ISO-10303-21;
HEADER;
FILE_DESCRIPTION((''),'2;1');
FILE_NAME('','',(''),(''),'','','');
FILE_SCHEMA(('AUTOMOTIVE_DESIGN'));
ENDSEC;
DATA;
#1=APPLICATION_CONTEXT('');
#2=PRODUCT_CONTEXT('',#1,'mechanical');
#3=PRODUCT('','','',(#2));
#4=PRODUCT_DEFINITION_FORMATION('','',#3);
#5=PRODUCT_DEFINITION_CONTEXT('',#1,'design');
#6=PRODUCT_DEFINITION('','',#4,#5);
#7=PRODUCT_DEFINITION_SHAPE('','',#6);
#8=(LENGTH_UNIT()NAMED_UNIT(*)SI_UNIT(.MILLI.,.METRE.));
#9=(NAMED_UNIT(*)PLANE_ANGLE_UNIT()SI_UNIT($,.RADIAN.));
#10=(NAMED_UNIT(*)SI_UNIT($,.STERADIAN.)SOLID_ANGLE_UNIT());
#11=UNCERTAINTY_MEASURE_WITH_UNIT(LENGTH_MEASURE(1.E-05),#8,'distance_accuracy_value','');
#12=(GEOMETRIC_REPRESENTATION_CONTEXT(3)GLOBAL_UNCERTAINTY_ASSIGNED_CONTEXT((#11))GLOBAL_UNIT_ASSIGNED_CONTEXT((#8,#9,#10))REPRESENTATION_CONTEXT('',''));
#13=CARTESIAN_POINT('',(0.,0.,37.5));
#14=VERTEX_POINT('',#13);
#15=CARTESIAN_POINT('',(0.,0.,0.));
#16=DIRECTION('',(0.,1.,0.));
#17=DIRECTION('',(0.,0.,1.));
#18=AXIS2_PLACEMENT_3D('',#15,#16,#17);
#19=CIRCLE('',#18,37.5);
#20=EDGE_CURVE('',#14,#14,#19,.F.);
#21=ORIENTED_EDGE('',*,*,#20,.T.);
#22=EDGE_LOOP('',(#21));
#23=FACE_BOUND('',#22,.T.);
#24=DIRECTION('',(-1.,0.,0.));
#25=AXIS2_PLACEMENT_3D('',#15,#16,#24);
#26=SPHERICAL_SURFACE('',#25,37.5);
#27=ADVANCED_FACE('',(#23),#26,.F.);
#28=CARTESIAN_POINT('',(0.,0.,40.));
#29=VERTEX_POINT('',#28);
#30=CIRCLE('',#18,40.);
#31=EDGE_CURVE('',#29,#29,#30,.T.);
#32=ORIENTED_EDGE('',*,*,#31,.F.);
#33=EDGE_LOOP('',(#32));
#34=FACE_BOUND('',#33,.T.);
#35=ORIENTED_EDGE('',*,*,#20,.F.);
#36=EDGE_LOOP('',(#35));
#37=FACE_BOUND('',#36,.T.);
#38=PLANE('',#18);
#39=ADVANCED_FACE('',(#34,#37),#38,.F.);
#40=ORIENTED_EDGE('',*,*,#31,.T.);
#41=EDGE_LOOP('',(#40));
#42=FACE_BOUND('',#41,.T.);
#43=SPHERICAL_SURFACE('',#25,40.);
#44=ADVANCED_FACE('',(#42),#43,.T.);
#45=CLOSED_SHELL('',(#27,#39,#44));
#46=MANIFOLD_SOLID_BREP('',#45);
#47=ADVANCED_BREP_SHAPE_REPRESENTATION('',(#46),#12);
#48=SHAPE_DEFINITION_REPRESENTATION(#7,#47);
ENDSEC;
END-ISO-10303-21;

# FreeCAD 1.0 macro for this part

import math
import FreeCAD as App
import Part
import Sketcher

V = App.Vector
Q = App.Units.Quantity

doc = App.newDocument("Part")
body = doc.addObject("PartDesign::Body", "Body")

# Sketch on XY plane
sketch1 = body.newObject("Sketcher::SketchObject", "Sketch")
sketch1.AttachmentSupport = (doc.getObject("XY_Plane"), [""])
sketch1.MapMode = "FlatFace"
sketch1.addGeometry(Part.LineSegment(V(0, 40, 0), V(0, 37.5, 0)), False)
sketch1.addGeometry(Part.ArcOfCircle(Part.Circle(V(0, 0, 0), V(0, 0, 1), 37.5), math.radians(-90), math.radians(90)), False)
sketch1.addGeometry(Part.LineSegment(V(0, -37.5, 0), V(0, -40, 0)), False)
sketch1.addGeometry(Part.ArcOfCircle(Part.Circle(V(0, 0, 0), V(0, 0, 1), 40), math.radians(-90), math.radians(90)), False)
sketch1.addConstraint(Sketcher.Constraint("Coincident", 0, 2, 1, 2))
sketch1.addConstraint(Sketcher.Constraint("Coincident", 1, 1, 2, 1))
sketch1.addConstraint(Sketcher.Constraint("Coincident", 2, 2, 3, 1))
sketch1.addConstraint(Sketcher.Constraint("Coincident", 3, 2, 0, 1))
sketch1.addConstraint(Sketcher.Constraint("Vertical", 0))
sketch1.addConstraint(Sketcher.Constraint("Vertical", 2))
sketch1.addConstraint(Sketcher.Constraint("Coincident", 1, 3, -1, 1))
sketch1.addConstraint(Sketcher.Constraint("Coincident", 3, 3, -1, 1))
sketch1.addConstraint(Sketcher.Constraint("PointOnObject", 0, 2, -2))
sketch1.addConstraint(Sketcher.Constraint("PointOnObject", 1, 1, -2))
sketch1.addConstraint(Sketcher.Constraint("Radius", 3, Q("40 mm")))
sketch1.addConstraint(Sketcher.Constraint("Radius", 1, Q("37.5 mm")))
revolution = body.newObject("PartDesign::Revolution", "Revolution")
revolution.Profile = sketch1
revolution.ReferenceAxis = (sketch1, ["V_Axis"])
revolution.Angle = 360

# Sketch on XZ plane
sketch2 = body.newObject("Sketcher::SketchObject", "Sketch001")
sketch2.AttachmentSupport = (doc.getObject("XZ_Plane"), [""])
sketch2.MapMode = "FlatFace"
sketch2.addGeometry(Part.Circle(V(0, 0, 0), V(0, 0, 1), 46), False)
sketch2.addConstraint(Sketcher.Constraint("Coincident", 0, 3, -1, 1))
sketch2.addConstraint(Sketcher.Constraint("Diameter", 0, Q("92.36674 mm")))
pocket1 = body.newObject("PartDesign::Pocket", "Pocket")
pocket1.Profile = sketch2
pocket1.Length = 500
pocket1.Reversed = True

doc.recompute()
